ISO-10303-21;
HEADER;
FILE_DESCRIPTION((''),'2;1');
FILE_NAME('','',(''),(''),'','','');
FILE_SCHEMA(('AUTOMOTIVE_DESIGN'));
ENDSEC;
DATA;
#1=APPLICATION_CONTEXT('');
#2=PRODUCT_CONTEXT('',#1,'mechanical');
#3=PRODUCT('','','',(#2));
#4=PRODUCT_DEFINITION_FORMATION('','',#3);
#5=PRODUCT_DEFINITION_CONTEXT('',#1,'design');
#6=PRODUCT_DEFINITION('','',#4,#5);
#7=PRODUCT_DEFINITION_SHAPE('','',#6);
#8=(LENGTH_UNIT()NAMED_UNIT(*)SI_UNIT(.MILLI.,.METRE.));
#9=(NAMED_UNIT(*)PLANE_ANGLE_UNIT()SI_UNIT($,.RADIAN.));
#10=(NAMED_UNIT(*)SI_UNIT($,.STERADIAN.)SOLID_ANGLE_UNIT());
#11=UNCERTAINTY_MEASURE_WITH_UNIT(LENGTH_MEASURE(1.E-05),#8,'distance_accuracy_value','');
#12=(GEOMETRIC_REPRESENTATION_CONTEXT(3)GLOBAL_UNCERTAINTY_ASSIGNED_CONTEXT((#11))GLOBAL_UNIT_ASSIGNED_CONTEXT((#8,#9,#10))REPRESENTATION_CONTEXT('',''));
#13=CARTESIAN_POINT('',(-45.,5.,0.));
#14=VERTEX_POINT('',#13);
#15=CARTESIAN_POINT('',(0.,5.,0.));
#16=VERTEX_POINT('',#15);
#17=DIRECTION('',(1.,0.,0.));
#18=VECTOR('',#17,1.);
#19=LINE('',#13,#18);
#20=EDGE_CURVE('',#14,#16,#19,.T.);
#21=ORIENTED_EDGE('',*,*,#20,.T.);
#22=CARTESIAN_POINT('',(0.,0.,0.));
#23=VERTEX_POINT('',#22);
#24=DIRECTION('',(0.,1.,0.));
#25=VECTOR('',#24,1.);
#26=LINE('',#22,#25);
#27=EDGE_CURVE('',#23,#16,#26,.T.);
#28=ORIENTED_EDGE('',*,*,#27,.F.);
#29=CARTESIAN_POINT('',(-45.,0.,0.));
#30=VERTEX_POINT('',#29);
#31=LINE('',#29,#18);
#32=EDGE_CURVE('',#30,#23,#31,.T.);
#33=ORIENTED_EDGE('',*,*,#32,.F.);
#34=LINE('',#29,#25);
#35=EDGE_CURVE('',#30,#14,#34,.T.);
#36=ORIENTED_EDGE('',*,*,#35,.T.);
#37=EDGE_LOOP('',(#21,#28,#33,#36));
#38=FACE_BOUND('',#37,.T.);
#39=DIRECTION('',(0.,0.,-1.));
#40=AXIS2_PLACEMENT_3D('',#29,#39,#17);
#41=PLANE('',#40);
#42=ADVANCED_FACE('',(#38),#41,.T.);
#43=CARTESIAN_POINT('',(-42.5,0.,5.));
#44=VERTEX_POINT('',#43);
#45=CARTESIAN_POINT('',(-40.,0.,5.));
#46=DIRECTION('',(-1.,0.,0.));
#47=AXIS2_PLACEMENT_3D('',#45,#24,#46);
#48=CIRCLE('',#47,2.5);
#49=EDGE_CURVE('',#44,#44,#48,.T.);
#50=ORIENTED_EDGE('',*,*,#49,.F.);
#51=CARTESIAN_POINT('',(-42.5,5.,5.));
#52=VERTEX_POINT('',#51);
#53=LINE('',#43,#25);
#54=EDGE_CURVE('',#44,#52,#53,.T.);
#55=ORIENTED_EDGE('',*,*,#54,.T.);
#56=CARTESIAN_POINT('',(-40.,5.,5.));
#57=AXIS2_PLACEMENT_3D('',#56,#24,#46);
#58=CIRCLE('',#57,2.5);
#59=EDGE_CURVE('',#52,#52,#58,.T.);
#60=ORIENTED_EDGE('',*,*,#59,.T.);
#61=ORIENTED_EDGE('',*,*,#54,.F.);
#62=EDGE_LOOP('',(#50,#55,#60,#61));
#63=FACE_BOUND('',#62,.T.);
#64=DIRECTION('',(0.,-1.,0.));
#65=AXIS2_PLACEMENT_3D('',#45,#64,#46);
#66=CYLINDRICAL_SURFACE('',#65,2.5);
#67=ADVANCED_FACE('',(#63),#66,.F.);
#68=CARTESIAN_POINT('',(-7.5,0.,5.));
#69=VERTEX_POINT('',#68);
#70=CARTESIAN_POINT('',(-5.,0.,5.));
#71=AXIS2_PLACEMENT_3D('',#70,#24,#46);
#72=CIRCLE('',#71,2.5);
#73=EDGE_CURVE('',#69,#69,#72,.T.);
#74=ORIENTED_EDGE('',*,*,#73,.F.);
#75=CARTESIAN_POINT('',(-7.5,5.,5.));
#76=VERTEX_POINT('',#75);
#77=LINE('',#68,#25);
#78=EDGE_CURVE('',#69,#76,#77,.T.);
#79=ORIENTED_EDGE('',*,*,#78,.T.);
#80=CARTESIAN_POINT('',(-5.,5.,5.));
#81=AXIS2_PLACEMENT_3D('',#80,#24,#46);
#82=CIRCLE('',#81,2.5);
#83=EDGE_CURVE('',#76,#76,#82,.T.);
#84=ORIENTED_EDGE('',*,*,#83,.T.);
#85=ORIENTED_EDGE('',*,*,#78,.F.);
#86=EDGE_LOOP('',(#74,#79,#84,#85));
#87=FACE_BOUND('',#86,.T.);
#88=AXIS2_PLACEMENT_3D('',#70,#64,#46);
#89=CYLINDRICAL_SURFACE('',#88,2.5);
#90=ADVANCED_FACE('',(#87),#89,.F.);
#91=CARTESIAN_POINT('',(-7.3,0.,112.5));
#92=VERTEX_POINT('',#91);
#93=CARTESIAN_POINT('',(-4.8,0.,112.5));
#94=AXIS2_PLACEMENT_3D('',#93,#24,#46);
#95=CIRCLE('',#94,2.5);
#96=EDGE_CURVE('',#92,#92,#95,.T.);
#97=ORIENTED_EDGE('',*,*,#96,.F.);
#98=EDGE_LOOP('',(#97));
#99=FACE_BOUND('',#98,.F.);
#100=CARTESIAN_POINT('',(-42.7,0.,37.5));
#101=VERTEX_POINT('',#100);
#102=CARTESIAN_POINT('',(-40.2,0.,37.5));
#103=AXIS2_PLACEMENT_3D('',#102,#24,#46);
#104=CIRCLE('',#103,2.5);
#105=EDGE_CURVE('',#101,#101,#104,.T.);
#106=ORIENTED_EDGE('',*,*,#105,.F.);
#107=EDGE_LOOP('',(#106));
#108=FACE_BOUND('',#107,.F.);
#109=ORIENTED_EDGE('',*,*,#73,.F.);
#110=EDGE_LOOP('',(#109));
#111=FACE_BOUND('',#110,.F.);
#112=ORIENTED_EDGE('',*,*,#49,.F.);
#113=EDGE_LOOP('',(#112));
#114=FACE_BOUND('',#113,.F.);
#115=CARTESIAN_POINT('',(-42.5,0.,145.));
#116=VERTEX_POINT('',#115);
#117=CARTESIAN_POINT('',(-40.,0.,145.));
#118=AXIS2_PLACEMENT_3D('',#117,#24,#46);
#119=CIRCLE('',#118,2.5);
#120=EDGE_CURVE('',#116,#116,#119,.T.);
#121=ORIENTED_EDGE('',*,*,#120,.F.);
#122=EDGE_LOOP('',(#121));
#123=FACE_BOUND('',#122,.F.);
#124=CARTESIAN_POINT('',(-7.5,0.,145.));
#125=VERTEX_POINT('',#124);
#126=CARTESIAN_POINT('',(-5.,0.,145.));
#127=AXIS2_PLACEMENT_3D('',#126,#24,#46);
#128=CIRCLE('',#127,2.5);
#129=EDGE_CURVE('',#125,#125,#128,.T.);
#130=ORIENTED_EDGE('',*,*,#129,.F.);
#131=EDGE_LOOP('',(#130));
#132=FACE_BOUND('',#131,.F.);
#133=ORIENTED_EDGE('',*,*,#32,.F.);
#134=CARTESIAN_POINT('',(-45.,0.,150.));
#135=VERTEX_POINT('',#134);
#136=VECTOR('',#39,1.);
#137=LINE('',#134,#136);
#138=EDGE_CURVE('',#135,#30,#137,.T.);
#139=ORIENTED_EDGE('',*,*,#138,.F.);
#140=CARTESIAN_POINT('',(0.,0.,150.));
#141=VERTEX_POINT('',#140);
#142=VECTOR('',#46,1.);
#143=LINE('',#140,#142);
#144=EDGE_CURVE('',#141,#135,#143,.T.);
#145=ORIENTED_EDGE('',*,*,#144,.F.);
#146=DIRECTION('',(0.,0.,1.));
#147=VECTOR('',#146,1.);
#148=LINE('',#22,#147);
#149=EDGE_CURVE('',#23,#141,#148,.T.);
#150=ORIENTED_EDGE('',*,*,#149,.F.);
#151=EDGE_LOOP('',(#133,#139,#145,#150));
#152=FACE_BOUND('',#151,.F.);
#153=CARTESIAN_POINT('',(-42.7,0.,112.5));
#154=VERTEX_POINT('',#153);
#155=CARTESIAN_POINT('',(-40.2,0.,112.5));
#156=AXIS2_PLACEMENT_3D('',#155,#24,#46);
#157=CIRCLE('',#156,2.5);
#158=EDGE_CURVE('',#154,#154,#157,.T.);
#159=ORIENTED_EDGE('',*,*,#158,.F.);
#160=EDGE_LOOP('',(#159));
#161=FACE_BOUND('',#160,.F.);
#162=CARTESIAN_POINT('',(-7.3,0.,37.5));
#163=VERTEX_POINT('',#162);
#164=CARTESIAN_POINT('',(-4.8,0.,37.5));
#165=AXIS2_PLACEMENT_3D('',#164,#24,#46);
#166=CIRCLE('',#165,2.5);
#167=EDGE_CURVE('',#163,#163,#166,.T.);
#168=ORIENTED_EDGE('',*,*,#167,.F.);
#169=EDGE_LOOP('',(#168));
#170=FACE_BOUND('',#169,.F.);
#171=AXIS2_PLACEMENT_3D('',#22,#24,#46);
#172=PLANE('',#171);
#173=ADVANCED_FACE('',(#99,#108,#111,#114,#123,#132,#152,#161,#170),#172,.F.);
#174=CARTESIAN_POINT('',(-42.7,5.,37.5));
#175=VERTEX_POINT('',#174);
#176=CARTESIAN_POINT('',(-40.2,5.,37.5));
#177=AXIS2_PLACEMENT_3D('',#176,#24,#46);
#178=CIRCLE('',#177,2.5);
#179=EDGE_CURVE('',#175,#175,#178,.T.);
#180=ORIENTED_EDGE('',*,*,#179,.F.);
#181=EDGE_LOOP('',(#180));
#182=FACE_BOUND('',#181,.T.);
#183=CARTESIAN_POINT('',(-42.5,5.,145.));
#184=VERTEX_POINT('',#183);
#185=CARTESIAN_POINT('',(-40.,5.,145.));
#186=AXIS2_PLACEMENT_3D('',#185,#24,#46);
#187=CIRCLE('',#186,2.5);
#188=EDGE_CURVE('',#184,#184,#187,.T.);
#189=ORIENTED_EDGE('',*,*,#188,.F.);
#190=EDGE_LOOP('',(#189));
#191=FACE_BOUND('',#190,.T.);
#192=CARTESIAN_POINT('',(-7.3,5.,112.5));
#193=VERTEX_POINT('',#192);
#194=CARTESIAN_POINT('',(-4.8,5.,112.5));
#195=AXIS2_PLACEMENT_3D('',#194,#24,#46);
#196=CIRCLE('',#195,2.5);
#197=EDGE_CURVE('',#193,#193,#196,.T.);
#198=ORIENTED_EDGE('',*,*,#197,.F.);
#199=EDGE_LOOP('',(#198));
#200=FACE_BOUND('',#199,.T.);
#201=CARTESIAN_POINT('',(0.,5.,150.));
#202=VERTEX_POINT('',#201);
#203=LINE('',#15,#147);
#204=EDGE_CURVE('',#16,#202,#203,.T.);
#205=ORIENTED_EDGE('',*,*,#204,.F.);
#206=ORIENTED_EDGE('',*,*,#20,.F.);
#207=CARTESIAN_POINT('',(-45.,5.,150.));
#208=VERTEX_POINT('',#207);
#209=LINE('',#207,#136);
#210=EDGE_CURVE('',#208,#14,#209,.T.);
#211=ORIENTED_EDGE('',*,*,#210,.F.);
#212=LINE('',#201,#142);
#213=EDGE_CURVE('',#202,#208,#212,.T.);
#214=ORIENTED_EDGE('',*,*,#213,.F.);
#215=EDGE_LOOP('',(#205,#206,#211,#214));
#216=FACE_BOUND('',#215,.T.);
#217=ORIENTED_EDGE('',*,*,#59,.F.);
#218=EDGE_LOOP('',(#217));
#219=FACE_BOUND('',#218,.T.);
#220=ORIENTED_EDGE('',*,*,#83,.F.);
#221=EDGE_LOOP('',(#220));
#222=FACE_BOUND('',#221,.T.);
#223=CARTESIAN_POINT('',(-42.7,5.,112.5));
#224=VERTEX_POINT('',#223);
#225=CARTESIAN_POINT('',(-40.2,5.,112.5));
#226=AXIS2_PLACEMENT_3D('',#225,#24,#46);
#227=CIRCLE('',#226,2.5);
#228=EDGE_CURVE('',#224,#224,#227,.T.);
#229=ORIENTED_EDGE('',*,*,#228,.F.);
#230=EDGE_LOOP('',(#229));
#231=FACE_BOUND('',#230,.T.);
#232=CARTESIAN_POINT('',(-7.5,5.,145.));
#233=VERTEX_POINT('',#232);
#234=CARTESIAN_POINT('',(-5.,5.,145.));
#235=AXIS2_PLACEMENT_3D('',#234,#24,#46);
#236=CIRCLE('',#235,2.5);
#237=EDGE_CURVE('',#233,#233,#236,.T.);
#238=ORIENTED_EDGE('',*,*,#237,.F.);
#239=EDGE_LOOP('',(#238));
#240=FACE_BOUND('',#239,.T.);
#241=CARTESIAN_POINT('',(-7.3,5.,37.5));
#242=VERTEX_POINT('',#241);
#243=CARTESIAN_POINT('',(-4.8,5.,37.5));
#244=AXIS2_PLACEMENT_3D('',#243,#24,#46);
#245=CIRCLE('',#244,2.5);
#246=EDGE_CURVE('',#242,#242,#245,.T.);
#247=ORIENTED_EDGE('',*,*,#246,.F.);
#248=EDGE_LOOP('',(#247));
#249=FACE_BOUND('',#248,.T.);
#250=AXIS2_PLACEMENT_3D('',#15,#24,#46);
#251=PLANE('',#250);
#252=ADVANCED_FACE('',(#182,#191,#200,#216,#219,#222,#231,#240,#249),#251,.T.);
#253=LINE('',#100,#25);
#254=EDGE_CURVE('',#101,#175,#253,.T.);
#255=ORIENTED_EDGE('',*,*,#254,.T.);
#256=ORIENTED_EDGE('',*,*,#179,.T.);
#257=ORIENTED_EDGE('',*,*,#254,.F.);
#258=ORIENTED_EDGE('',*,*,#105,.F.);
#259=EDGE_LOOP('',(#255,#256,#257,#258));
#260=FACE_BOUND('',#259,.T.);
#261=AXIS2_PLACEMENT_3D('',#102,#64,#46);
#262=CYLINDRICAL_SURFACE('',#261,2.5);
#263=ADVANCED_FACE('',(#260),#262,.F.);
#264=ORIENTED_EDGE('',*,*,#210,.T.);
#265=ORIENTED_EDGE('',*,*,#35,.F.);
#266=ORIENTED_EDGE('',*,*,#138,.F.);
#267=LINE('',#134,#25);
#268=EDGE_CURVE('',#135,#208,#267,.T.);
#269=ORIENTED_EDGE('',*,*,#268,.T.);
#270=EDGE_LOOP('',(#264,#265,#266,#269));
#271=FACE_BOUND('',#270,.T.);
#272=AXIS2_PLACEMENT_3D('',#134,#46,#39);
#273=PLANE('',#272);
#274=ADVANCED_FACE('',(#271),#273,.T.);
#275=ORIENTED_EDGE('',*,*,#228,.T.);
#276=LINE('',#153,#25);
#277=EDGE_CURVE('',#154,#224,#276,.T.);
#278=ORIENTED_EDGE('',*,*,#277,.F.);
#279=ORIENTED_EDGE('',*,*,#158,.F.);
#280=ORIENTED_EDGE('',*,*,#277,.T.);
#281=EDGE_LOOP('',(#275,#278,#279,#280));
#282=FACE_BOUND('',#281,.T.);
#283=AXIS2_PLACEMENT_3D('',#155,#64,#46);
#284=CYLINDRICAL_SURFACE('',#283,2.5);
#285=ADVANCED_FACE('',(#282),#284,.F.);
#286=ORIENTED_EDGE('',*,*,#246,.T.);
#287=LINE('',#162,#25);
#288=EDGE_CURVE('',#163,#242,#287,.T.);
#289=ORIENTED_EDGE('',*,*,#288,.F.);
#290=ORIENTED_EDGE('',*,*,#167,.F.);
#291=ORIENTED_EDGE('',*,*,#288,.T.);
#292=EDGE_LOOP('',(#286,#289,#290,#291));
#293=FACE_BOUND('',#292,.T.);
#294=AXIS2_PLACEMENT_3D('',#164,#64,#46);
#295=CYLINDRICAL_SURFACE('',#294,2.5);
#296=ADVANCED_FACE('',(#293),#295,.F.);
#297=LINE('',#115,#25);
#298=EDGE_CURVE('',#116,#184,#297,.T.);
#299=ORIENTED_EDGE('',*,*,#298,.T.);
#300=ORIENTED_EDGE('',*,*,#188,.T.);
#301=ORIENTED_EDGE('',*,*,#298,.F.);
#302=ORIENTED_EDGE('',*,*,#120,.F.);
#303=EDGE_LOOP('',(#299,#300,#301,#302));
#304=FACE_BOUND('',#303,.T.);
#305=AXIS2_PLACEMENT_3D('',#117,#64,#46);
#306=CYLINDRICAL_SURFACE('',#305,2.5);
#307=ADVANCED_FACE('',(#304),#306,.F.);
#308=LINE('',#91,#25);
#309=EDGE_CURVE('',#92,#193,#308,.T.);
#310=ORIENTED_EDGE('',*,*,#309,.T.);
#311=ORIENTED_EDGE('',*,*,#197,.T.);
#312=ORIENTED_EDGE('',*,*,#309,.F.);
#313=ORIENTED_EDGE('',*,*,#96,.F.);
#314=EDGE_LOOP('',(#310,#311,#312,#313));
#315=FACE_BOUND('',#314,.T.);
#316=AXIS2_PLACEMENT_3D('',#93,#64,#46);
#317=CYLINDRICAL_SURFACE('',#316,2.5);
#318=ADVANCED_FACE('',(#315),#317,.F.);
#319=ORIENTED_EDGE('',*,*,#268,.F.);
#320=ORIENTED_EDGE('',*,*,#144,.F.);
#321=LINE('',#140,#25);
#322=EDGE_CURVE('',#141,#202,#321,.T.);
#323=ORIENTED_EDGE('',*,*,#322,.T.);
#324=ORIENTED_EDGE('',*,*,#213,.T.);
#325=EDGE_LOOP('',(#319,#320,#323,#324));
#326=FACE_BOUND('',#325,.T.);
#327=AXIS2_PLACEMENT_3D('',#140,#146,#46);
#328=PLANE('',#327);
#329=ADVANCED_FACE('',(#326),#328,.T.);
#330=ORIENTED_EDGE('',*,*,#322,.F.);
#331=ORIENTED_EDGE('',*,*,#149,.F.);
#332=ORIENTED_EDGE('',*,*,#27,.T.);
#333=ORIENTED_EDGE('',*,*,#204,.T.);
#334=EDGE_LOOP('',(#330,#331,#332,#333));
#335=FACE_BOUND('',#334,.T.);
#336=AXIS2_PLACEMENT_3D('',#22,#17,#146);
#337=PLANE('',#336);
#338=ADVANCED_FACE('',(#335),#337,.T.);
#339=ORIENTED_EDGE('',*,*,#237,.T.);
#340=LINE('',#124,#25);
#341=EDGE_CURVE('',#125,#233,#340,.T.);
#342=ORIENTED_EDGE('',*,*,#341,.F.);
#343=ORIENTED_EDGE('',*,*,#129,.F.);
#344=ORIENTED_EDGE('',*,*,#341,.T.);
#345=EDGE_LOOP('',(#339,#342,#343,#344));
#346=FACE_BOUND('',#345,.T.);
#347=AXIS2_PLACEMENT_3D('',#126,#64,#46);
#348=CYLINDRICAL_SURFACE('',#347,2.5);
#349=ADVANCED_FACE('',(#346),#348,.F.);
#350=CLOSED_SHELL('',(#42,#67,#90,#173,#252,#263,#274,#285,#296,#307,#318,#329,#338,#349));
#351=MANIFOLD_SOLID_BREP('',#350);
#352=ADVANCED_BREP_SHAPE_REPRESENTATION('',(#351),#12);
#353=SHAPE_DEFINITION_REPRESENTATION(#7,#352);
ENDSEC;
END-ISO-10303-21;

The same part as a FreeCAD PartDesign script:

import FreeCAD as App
import Part
import Sketcher

V = App.Vector

doc = App.newDocument("Part")
body = doc.addObject("PartDesign::Body", "Body")

# Sketch on XZ plane
sketch1 = body.newObject("Sketcher::SketchObject", "Sketch")
sketch1.AttachmentSupport = (doc.getObject("XZ_Plane"), [""])
sketch1.MapMode = "FlatFace"
sketch1.addGeometry([
    Part.LineSegment(V(0, 150, 0), V(0, 0, 0)),  # 0
    Part.LineSegment(V(0, 0, 0), V(-45, 0, 0)),  # 1
    Part.LineSegment(V(-45, 0, 0), V(-45, 150, 0)),  # 2
    Part.LineSegment(V(-45, 150, 0), V(0, 150, 0)),  # 3
    Part.Circle(V(-5, 5, 0), V(0, 0, 1), 2.5),  # 4
    Part.Circle(V(-4.8, 37.5, 0), V(0, 0, 1), 2.5),  # 5
    Part.Circle(V(-40, 5, 0), V(0, 0, 1), 2.5),  # 6
    Part.Circle(V(-40.2, 37.5, 0), V(0, 0, 1), 2.5),  # 7
    Part.Circle(V(-4.8, 112.5, 0), V(0, 0, 1), 2.5),  # 8
    Part.Circle(V(-5, 145, 0), V(0, 0, 1), 2.5),  # 9
    Part.Circle(V(-40.2, 112.5, 0), V(0, 0, 1), 2.5),  # 10
    Part.Circle(V(-40, 145, 0), V(0, 0, 1), 2.5),  # 11
], False)
sketch1.addConstraint([
    Sketcher.Constraint("Coincident", 0, 2, 1, 1),
    Sketcher.Constraint("Coincident", 1, 2, 2, 1),
    Sketcher.Constraint("Coincident", 2, 2, 3, 1),
    Sketcher.Constraint("Coincident", 3, 2, 0, 1),
    Sketcher.Constraint("Vertical", 0),
    Sketcher.Constraint("Horizontal", 1),
    Sketcher.Constraint("Vertical", 2),
    Sketcher.Constraint("Horizontal", 3),
    Sketcher.Constraint("Coincident", 0, 2, -1, 1),
    Sketcher.Constraint("Equal", 4, 5),
    Sketcher.Constraint("Equal", 5, 6),
    Sketcher.Constraint("Equal", 6, 7),
    Sketcher.Constraint("Equal", 7, 8),
    Sketcher.Constraint("Equal", 8, 9),
    Sketcher.Constraint("Equal", 9, 10),
    Sketcher.Constraint("Equal", 10, 11),
    Sketcher.Constraint("Horizontal", 4, 3, 6, 3),
    Sketcher.Constraint("Horizontal", 5, 3, 7, 3),
    Sketcher.Constraint("Horizontal", 8, 3, 10, 3),
    Sketcher.Constraint("Horizontal", 9, 3, 11, 3),
    Sketcher.Constraint("Vertical", 5, 3, 8, 3),
    Sketcher.Constraint("Vertical", 4, 3, 9, 3),
    Sketcher.Constraint("Vertical", 7, 3, 10, 3),
    Sketcher.Constraint("Vertical", 6, 3, 11, 3),
    Sketcher.Constraint("Diameter", 4, 5.0),
    Sketcher.Constraint("DistanceX", 1, 2, 1, 1, 45.0),
    Sketcher.Constraint("DistanceY", 0, 2, 0, 1, 150.0),
    Sketcher.Constraint("DistanceX", 4, 3, -1, 1, 5.0),
    Sketcher.Constraint("DistanceY", -1, 1, 4, 3, 5.0),
    Sketcher.Constraint("DistanceX", 1, 2, 6, 3, 5.0),
    Sketcher.Constraint("DistanceY", 11, 3, 2, 2, 5.0),
    Sketcher.Constraint("DistanceY", 5, 3, 8, 3, 75.0),
    Sketcher.Constraint("DistanceX", 5, 3, -1, 1, 4.8),
    Sketcher.Constraint("DistanceY", -1, 1, 5, 3, 37.5),
    Sketcher.Constraint("DistanceX", 7, 3, -1, 1, 40.2),
])
pad1 = body.newObject("PartDesign::Pad", "Pad")
pad1.Profile = sketch1
pad1.Length = 5
pad1.Reversed = True

doc.recompute()
